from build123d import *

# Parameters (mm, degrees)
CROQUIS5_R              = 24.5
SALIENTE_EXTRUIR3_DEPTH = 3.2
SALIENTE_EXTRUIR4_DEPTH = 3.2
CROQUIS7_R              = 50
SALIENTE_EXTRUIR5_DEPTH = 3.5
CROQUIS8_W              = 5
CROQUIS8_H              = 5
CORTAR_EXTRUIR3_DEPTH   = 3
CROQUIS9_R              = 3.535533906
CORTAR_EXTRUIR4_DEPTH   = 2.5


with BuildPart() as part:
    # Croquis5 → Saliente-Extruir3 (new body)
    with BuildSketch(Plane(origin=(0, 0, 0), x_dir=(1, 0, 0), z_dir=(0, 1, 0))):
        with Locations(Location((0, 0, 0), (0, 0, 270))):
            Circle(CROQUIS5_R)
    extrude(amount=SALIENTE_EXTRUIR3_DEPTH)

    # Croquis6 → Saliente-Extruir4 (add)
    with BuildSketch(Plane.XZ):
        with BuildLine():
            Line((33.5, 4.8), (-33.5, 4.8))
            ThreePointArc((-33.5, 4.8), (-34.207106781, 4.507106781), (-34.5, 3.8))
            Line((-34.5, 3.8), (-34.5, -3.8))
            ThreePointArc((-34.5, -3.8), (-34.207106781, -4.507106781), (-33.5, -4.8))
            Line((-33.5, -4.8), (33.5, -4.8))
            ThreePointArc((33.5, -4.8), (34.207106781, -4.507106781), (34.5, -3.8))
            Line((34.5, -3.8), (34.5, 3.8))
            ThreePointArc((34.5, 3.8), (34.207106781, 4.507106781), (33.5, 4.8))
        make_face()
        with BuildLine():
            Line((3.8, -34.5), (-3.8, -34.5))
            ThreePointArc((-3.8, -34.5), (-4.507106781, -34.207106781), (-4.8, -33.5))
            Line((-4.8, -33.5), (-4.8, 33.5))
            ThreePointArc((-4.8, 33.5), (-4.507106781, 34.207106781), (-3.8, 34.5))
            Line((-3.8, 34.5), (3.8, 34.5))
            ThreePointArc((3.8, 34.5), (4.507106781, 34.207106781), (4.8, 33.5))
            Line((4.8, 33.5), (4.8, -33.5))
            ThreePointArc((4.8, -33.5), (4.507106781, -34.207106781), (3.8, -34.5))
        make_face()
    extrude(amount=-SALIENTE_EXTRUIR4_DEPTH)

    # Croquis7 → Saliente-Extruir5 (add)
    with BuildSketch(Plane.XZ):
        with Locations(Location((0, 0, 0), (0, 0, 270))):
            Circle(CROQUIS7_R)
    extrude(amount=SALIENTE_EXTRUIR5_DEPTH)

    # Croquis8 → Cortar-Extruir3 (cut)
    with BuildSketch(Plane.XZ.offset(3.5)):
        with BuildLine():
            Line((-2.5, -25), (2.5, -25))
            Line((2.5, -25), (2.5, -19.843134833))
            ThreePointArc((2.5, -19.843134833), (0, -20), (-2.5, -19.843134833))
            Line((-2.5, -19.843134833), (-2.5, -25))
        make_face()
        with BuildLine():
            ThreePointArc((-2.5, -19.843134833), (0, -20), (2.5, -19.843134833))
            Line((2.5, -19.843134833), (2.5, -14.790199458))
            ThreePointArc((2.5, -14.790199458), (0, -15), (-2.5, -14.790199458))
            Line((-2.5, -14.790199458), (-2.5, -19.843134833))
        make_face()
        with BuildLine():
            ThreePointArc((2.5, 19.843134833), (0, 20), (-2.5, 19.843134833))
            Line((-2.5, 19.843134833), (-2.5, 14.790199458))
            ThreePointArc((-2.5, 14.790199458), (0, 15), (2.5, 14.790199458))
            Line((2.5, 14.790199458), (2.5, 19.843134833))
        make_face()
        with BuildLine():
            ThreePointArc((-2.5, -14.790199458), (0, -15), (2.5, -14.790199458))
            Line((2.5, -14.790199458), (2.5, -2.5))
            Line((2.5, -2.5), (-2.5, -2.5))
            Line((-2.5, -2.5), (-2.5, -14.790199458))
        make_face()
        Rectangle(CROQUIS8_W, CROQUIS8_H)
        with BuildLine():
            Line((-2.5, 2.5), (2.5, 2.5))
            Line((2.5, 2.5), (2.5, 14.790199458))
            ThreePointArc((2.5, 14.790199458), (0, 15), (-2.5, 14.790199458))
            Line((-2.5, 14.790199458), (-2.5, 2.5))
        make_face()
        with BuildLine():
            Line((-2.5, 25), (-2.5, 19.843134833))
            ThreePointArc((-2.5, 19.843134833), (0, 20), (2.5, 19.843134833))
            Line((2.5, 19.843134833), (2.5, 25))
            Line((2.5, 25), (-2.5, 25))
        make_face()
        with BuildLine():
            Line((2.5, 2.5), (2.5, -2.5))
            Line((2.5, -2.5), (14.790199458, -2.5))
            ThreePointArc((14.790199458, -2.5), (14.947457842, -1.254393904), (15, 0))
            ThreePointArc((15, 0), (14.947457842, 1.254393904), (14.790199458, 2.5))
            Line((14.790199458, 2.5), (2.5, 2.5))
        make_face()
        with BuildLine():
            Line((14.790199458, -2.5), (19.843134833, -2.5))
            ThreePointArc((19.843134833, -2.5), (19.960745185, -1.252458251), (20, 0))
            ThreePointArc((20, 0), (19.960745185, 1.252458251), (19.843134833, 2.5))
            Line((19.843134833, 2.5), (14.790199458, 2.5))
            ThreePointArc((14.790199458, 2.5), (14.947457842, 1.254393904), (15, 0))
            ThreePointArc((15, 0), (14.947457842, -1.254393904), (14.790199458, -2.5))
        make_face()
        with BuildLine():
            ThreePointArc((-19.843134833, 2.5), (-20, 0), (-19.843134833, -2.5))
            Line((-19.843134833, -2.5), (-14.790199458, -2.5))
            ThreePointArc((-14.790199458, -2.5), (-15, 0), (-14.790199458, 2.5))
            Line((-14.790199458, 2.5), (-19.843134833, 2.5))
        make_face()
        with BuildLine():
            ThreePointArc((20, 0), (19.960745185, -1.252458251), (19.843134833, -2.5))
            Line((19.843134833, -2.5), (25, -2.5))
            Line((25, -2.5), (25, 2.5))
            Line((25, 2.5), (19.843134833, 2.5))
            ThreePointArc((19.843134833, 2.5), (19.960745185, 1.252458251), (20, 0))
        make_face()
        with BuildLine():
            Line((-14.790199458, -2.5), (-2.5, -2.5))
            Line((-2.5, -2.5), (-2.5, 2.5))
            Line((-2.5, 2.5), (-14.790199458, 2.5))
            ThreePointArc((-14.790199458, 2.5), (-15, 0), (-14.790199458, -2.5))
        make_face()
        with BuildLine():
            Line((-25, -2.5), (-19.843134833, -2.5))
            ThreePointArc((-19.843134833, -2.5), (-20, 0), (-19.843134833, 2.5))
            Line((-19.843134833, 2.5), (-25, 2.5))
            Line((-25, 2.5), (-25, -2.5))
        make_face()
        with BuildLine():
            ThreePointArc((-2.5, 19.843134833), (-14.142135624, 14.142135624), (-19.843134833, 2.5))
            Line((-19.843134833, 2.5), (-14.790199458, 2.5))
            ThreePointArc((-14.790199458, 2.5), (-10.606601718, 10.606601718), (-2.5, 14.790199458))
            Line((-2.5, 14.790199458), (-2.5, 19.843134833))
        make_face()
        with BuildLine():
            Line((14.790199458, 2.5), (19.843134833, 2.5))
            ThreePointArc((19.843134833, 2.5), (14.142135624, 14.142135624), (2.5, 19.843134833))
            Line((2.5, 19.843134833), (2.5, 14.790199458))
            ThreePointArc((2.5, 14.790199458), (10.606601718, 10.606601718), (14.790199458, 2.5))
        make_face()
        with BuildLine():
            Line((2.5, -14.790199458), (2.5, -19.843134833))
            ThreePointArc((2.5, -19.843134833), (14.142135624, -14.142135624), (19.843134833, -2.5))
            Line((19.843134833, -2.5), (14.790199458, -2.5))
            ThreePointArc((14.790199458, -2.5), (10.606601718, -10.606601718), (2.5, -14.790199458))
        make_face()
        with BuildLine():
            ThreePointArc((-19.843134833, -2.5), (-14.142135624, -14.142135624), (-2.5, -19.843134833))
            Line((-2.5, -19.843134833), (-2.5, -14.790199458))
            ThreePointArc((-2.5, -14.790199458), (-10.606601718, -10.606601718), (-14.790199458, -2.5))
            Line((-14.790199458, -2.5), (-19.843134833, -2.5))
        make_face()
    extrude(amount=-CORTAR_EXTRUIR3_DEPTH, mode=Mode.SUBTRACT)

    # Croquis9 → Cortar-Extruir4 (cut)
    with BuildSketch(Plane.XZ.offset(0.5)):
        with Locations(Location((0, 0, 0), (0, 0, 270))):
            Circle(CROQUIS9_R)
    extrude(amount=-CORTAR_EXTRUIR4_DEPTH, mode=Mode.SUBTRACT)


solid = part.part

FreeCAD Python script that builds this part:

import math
import FreeCAD as App
import Part
import Sketcher
from FreeCAD import Vector

doc = App.newDocument("Part")
body = doc.addObject("PartDesign::Body", "Body")

# Sketch on XZ plane
sketch1 = body.newObject("Sketcher::SketchObject", "Sketch")
sketch1.AttachmentSupport = (doc.getObject("XZ_Plane"), [""])
sketch1.MapMode = "FlatFace"
sketch1.addGeometry(Part.Circle(Vector(0, 0, 0), Vector(0, 0, 1), 24), False)
sketch1.addConstraint([
    Sketcher.Constraint("Coincident", 0, 3, -1, 1),
    Sketcher.Constraint("Diameter", 0, 49.0),
])
pad1 = body.newObject("PartDesign::Pad", "Pad")
pad1.Profile = sketch1
pad1.Length = 3.2
pad1.Reversed = True

# Sketch on XZ plane
sketch2 = body.newObject("Sketcher::SketchObject", "Sketch001")
sketch2.AttachmentSupport = (doc.getObject("XZ_Plane"), [""])
sketch2.MapMode = "FlatFace"
sketch2.addGeometry([
    Part.ArcOfCircle(Part.Circle(Vector(33.5, 3.8, 0), Vector(0, 0, 1), 1), math.radians(0), math.radians(90)),  # 0
    Part.LineSegment(Vector(33.5, 4.8, 0), Vector(4.8, 4.8, 0)),  # 1
    Part.LineSegment(Vector(4.8, 4.8, 0), Vector(4.8, 33.5, 0)),  # 2
    Part.ArcOfCircle(Part.Circle(Vector(3.8, 33.5, 0), Vector(0, 0, 1), 1), math.radians(0), math.radians(90)),  # 3
    Part.LineSegment(Vector(3.8, 34.5, 0), Vector(-3.8, 34.5, 0)),  # 4
    Part.ArcOfCircle(Part.Circle(Vector(-3.8, 33.5, 0), Vector(0, 0, 1), 1), math.radians(90), math.radians(180)),  # 5
    Part.LineSegment(Vector(-4.8, 33.5, 0), Vector(-4.8, 4.8, 0)),  # 6
    Part.LineSegment(Vector(-4.8, 4.8, 0), Vector(-33.5, 4.8, 0)),  # 7
    Part.ArcOfCircle(Part.Circle(Vector(-33.5, 3.8, 0), Vector(0, 0, 1), 1), math.radians(90), math.radians(180)),  # 8
    Part.LineSegment(Vector(-34.5, 3.8, 0), Vector(-34.5, -3.8, 0)),  # 9
    Part.ArcOfCircle(Part.Circle(Vector(-33.5, -3.8, 0), Vector(0, 0, 1), 1), math.radians(-180), math.radians(-90)),  # 10
    Part.LineSegment(Vector(-33.5, -4.8, 0), Vector(-4.8, -4.8, 0)),  # 11
    Part.LineSegment(Vector(-4.8, -4.8, 0), Vector(-4.8, -33.5, 0)),  # 12
    Part.ArcOfCircle(Part.Circle(Vector(-3.8, -33.5, 0), Vector(0, 0, 1), 1), math.radians(-180), math.radians(-90)),  # 13
    Part.LineSegment(Vector(-3.8, -34.5, 0), Vector(3.8, -34.5, 0)),  # 14
    Part.ArcOfCircle(Part.Circle(Vector(3.8, -33.5, 0), Vector(0, 0, 1), 1), math.radians(-90), math.radians(0)),  # 15
    Part.LineSegment(Vector(4.8, -33.5, 0), Vector(4.8, -4.8, 0)),  # 16
    Part.LineSegment(Vector(4.8, -4.8, 0), Vector(33.5, -4.8, 0)),  # 17
    Part.ArcOfCircle(Part.Circle(Vector(33.5, -3.8, 0), Vector(0, 0, 1), 1), math.radians(-90), math.radians(0)),  # 18
    Part.LineSegment(Vector(34.5, -3.8, 0), Vector(34.5, 3.8, 0)),  # 19
], False)
sketch2.addConstraint([
    Sketcher.Constraint("Tangent", 0, 2, 1, 1),
    Sketcher.Constraint("Coincident", 1, 2, 2, 1),
    Sketcher.Constraint("Tangent", 2, 2, 3, 1),
    Sketcher.Constraint("Tangent", 3, 2, 4, 1),
    Sketcher.Constraint("Tangent", 4, 2, 5, 1),
    Sketcher.Constraint("Tangent", 5, 2, 6, 1),
    Sketcher.Constraint("Coincident", 6, 2, 7, 1),
    Sketcher.Constraint("Tangent", 7, 2, 8, 1),
    Sketcher.Constraint("Tangent", 8, 2, 9, 1),
    Sketcher.Constraint("Tangent", 9, 2, 10, 1),
    Sketcher.Constraint("Tangent", 10, 2, 11, 1),
    Sketcher.Constraint("Coincident", 11, 2, 12, 1),
    Sketcher.Constraint("Tangent", 12, 2, 13, 1),
    Sketcher.Constraint("Tangent", 13, 2, 14, 1),
    Sketcher.Constraint("Tangent", 14, 2, 15, 1),
    Sketcher.Constraint("Tangent", 15, 2, 16, 1),
    Sketcher.Constraint("Coincident", 16, 2, 17, 1),
    Sketcher.Constraint("Tangent", 17, 2, 18, 1),
    Sketcher.Constraint("Tangent", 18, 2, 19, 1),
    Sketcher.Constraint("Tangent", 19, 2, 0, 1),
    Sketcher.Constraint("Horizontal", 1),
    Sketcher.Constraint("Vertical", 2),
    Sketcher.Constraint("Horizontal", 4),
    Sketcher.Constraint("Vertical", 6),
    Sketcher.Constraint("Horizontal", 7),
    Sketcher.Constraint("Vertical", 9),
    Sketcher.Constraint("Horizontal", 11),
    Sketcher.Constraint("Vertical", 12),
    Sketcher.Constraint("Horizontal", 14),
    Sketcher.Constraint("Vertical", 16),
    Sketcher.Constraint("Horizontal", 17),
    Sketcher.Constraint("Vertical", 19),
    Sketcher.Constraint("Equal", 0, 3),
    Sketcher.Constraint("Equal", 3, 5),
    Sketcher.Constraint("Equal", 5, 8),
    Sketcher.Constraint("Equal", 8, 10),
    Sketcher.Constraint("Equal", 10, 13),
    Sketcher.Constraint("Equal", 13, 15),
    Sketcher.Constraint("Equal", 15, 18),
    Sketcher.Constraint("Symmetric", 0, 3, 10, 3, -1, 1),
    Sketcher.Constraint("Symmetric", 3, 3, 13, 3, -1, 1),
    Sketcher.Constraint("Symmetric", 6, 2, 16, 2, -1, 1),
    Sketcher.Constraint("Symmetric", 1, 2, 6, 2, -2),
    Sketcher.Constraint("Equal", 17, 2),
    Sketcher.Constraint("Equal", 14, 9),
    Sketcher.Constraint("Radius", 0, 1.0),
    Sketcher.Constraint("DistanceX", 1, 2, 1, 1, 28.7),
    Sketcher.Constraint("DistanceX", 4, 2, 4, 1, 7.6),
])
pad2 = body.newObject("PartDesign::Pad", "Pad001")
pad2.Profile = sketch2
pad2.Length = 3.2
pad2.Reversed = True

# Sketch on XZ plane
sketch3 = body.newObject("Sketcher::SketchObject", "Sketch002")
sketch3.AttachmentSupport = (doc.getObject("XZ_Plane"), [""])
sketch3.MapMode = "FlatFace"
sketch3.addGeometry(Part.Circle(Vector(0, 0, 0), Vector(0, 0, 1), 50), False)
sketch3.addConstraint([
    Sketcher.Constraint("Coincident", 0, 3, -1, 1),
    Sketcher.Constraint("Diameter", 0, 100.0),
])
pad3 = body.newObject("PartDesign::Pad", "Pad002")
pad3.Profile = sketch3
pad3.Length = 3.5

# Sketch on XZ plane
sketch4 = body.newObject("Sketcher::SketchObject", "Sketch003")
sketch4.AttachmentSupport = (doc.getObject("XZ_Plane"), [""])
sketch4.MapMode = "FlatFace"
sketch4.AttachmentOffset = App.Placement(Vector(0, 0, 3.5), App.Rotation())
sketch4.addGeometry([
    Part.LineSegment(Vector(-2, -20, 0), Vector(-2, -25, 0)),  # 0
    Part.LineSegment(Vector(-2, -25, 0), Vector(2, -25, 0)),  # 1
    Part.LineSegment(Vector(2, -25, 0), Vector(2, -20, 0)),  # 2
    Part.ArcOfCircle(Part.Circle(Vector(0, 0, 0), Vector(0, 0, 1), 20), math.radians(-83), math.radians(-7)),  # 3
    Part.LineSegment(Vector(20, -2, 0), Vector(25, -2, 0)),  # 4
    Part.LineSegment(Vector(25, -2, 0), Vector(25, 2, 0)),  # 5
    Part.LineSegment(Vector(25, 2, 0), Vector(20, 2, 0)),  # 6
    Part.ArcOfCircle(Part.Circle(Vector(0, 0, 0), Vector(0, 0, 1), 20), math.radians(7), math.radians(83)),  # 7
    Part.LineSegment(Vector(2, 20, 0), Vector(2, 25, 0)),  # 8
    Part.LineSegment(Vector(2, 25, 0), Vector(-2, 25, 0)),  # 9
    Part.LineSegment(Vector(-2, 25, 0), Vector(-2, 20, 0)),  # 10
    Part.ArcOfCircle(Part.Circle(Vector(0, 0, 0), Vector(0, 0, 1), 20), math.radians(97), math.radians(173)),  # 11
    Part.LineSegment(Vector(-20, 2, 0), Vector(-25, 2, 0)),  # 12
    Part.LineSegment(Vector(-25, 2, 0), Vector(-25, -2, 0)),  # 13
    Part.LineSegment(Vector(-25, -2, 0), Vector(-20, -2, 0)),  # 14
    Part.ArcOfCircle(Part.Circle(Vector(0, 0, 0), Vector(0, 0, 1), 20), math.radians(-173), math.radians(-97)),  # 15
    Part.LineSegment(Vector(-2, -2, 0), Vector(-2, -15, 0)),  # 16
    Part.ArcOfCircle(Part.Circle(Vector(0, 0, 0), Vector(0, 0, 1), 15), math.radians(-170), math.radians(-100)),  # 17
    Part.LineSegment(Vector(-15, -2, 0), Vector(-2, -2, 0)),  # 18
    Part.LineSegment(Vector(2, -15, 0), Vector(2, -2, 0)),  # 19
    Part.LineSegment(Vector(2, -2, 0), Vector(15, -2, 0)),  # 20
    Part.ArcOfCircle(Part.Circle(Vector(0, 0, 0), Vector(0, 0, 1), 15), math.radians(-80), math.radians(-10)),  # 21
    Part.LineSegment(Vector(15, 2, 0), Vector(2, 2, 0)),  # 22
    Part.LineSegment(Vector(2, 2, 0), Vector(2, 15, 0)),  # 23
    Part.ArcOfCircle(Part.Circle(Vector(0, 0, 0), Vector(0, 0, 1), 15), math.radians(10), math.radians(80)),  # 24
    Part.LineSegment(Vector(-2, 15, 0), Vector(-2, 2, 0)),  # 25
    Part.LineSegment(Vector(-2, 2, 0), Vector(-15, 2, 0)),  # 26
    Part.ArcOfCircle(Part.Circle(Vector(0, 0, 0), Vector(0, 0, 1), 15), math.radians(100), math.radians(170)),  # 27
], False)
sketch4.addConstraint([
    Sketcher.Constraint("Coincident", 0, 2, 1, 1),
    Sketcher.Constraint("Coincident", 1, 2, 2, 1),
    Sketcher.Constraint("Coincident", 2, 2, 3, 1),
    Sketcher.Constraint("Coincident", 3, 2, 4, 1),
    Sketcher.Constraint("Coincident", 4, 2, 5, 1),
    Sketcher.Constraint("Coincident", 5, 2, 6, 1),
    Sketcher.Constraint("Coincident", 6, 2, 7, 1),
    Sketcher.Constraint("Coincident", 7, 2, 8, 1),
    Sketcher.Constraint("Coincident", 8, 2, 9, 1),
    Sketcher.Constraint("Coincident", 9, 2, 10, 1),
    Sketcher.Constraint("Coincident", 10, 2, 11, 1),
    Sketcher.Constraint("Coincident", 11, 2, 12, 1),
    Sketcher.Constraint("Coincident", 12, 2, 13, 1),
    Sketcher.Constraint("Coincident", 13, 2, 14, 1),
    Sketcher.Constraint("Coincident", 14, 2, 15, 1),
    Sketcher.Constraint("Coincident", 15, 2, 0, 1),
    Sketcher.Constraint("Coincident", 16, 2, 17, 2),
    Sketcher.Constraint("Coincident", 17, 1, 18, 1),
    Sketcher.Constraint("Coincident", 18, 2, 16, 1),
    Sketcher.Constraint("Coincident", 19, 2, 20, 1),
    Sketcher.Constraint("Coincident", 20, 2, 21, 2),
    Sketcher.Constraint("Coincident", 21, 1, 19, 1),
    Sketcher.Constraint("Coincident", 22, 2, 23, 1),
    Sketcher.Constraint("Coincident", 23, 2, 24, 2),
    Sketcher.Constraint("Coincident", 24, 1, 22, 1),
    Sketcher.Constraint("Coincident", 25, 2, 26, 1),
    Sketcher.Constraint("Coincident", 26, 2, 27, 2),
    Sketcher.Constraint("Coincident", 27, 1, 25, 1),
    Sketcher.Constraint("Vertical", 0),
    Sketcher.Constraint("Horizontal", 1),
    Sketcher.Constraint("Vertical", 2),
    Sketcher.Constraint("Horizontal", 4),
    Sketcher.Constraint("Vertical", 5),
    Sketcher.Constraint("Horizontal", 6),
    Sketcher.Constraint("Vertical", 8),
    Sketcher.Constraint("Horizontal", 9),
    Sketcher.Constraint("Vertical", 10),
    Sketcher.Constraint("Horizontal", 12),
    Sketcher.Constraint("Vertical", 13),
    Sketcher.Constraint("Horizontal", 14),
    Sketcher.Constraint("Vertical", 16),
    Sketcher.Constraint("Horizontal", 18),
    Sketcher.Constraint("Vertical", 19),
    Sketcher.Constraint("Horizontal", 20),
    Sketcher.Constraint("Horizontal", 22),
    Sketcher.Constraint("Vertical", 23),
    Sketcher.Constraint("Vertical", 25),
    Sketcher.Constraint("Horizontal", 26),
    Sketcher.Constraint("Coincident", 3, 3, -1, 1),
    Sketcher.Constraint("Coincident", 7, 3, -1, 1),
    Sketcher.Constraint("Coincident", 11, 3, -1, 1),
    Sketcher.Constraint("Coincident", 15, 3, -1, 1),
    Sketcher.Constraint("Coincident", 17, 3, -1, 1),
    Sketcher.Constraint("Coincident", 21, 3, -1, 1),
    Sketcher.Constraint("Coincident", 24, 3, -1, 1),
    Sketcher.Constraint("Coincident", 27, 3, -1, 1),
    Sketcher.Constraint("Equal", 3, 7),
    Sketcher.Constraint("Equal", 7, 11),
    Sketcher.Constraint("Equal", 11, 15),
    Sketcher.Constraint("Equal", 17, 21),
    Sketcher.Constraint("Equal", 21, 24),
    Sketcher.Constraint("Equal", 24, 27),
    Sketcher.Constraint("Symmetric", 0, 2, 8, 2, -1, 1),
    Sketcher.Constraint("Symmetric", 4, 2, 12, 2, -1, 1),
    Sketcher.Constraint("Symmetric", 18, 2, 22, 2, -1, 1),
    Sketcher.Constraint("Symmetric", 19, 2, 25, 2, -1, 1),
    Sketcher.Constraint("Symmetric", 18, 2, 19, 2, -2),
    Sketcher.Constraint("Horizontal", 7, 2, 10, 2),
    Sketcher.Constraint("Horizontal", 6, 2, 11, 2),
    Sketcher.Constraint("Horizontal", 4, 2, 13, 2),
    Sketcher.Constraint("Horizontal", 2, 2, 15, 2),
    Sketcher.Constraint("Horizontal", 14, 2, 17, 1),
    Sketcher.Constraint("Vertical", 15, 2, 16, 2),
    Sketcher.Constraint("Equal", 14, 0),
    Sketcher.Constraint("Equal", 9, 5),
    Sketcher.Constraint("Radius", 3, 20.0),
    Sketcher.Constraint("Radius", 17, 15.0),
    Sketcher.Constraint("DistanceX", 1, 1, 1, 2, 5.0),
    Sketcher.Constraint("DistanceY", 0, 2, -1, 1, 25.0),
])
pocket1 = body.newObject("PartDesign::Pocket", "Pocket")
pocket1.Profile = sketch4
pocket1.Length = 3

# Sketch on XZ plane
sketch5 = body.newObject("Sketcher::SketchObject", "Sketch004")
sketch5.AttachmentSupport = (doc.getObject("XZ_Plane"), [""])
sketch5.MapMode = "FlatFace"
sketch5.AttachmentOffset = App.Placement(Vector(0, 0, 0.5), App.Rotation())
sketch5.addGeometry(Part.Circle(Vector(0, 0, 0), Vector(0, 0, 1), 3.5), False)
sketch5.addConstraint([
    Sketcher.Constraint("Coincident", 0, 3, -1, 1),
    Sketcher.Constraint("Diameter", 0, 7.071068),
])
pocket2 = body.newObject("PartDesign::Pocket", "Pocket001")
pocket2.Profile = sketch5
pocket2.Length = 2.5

doc.recompute()
